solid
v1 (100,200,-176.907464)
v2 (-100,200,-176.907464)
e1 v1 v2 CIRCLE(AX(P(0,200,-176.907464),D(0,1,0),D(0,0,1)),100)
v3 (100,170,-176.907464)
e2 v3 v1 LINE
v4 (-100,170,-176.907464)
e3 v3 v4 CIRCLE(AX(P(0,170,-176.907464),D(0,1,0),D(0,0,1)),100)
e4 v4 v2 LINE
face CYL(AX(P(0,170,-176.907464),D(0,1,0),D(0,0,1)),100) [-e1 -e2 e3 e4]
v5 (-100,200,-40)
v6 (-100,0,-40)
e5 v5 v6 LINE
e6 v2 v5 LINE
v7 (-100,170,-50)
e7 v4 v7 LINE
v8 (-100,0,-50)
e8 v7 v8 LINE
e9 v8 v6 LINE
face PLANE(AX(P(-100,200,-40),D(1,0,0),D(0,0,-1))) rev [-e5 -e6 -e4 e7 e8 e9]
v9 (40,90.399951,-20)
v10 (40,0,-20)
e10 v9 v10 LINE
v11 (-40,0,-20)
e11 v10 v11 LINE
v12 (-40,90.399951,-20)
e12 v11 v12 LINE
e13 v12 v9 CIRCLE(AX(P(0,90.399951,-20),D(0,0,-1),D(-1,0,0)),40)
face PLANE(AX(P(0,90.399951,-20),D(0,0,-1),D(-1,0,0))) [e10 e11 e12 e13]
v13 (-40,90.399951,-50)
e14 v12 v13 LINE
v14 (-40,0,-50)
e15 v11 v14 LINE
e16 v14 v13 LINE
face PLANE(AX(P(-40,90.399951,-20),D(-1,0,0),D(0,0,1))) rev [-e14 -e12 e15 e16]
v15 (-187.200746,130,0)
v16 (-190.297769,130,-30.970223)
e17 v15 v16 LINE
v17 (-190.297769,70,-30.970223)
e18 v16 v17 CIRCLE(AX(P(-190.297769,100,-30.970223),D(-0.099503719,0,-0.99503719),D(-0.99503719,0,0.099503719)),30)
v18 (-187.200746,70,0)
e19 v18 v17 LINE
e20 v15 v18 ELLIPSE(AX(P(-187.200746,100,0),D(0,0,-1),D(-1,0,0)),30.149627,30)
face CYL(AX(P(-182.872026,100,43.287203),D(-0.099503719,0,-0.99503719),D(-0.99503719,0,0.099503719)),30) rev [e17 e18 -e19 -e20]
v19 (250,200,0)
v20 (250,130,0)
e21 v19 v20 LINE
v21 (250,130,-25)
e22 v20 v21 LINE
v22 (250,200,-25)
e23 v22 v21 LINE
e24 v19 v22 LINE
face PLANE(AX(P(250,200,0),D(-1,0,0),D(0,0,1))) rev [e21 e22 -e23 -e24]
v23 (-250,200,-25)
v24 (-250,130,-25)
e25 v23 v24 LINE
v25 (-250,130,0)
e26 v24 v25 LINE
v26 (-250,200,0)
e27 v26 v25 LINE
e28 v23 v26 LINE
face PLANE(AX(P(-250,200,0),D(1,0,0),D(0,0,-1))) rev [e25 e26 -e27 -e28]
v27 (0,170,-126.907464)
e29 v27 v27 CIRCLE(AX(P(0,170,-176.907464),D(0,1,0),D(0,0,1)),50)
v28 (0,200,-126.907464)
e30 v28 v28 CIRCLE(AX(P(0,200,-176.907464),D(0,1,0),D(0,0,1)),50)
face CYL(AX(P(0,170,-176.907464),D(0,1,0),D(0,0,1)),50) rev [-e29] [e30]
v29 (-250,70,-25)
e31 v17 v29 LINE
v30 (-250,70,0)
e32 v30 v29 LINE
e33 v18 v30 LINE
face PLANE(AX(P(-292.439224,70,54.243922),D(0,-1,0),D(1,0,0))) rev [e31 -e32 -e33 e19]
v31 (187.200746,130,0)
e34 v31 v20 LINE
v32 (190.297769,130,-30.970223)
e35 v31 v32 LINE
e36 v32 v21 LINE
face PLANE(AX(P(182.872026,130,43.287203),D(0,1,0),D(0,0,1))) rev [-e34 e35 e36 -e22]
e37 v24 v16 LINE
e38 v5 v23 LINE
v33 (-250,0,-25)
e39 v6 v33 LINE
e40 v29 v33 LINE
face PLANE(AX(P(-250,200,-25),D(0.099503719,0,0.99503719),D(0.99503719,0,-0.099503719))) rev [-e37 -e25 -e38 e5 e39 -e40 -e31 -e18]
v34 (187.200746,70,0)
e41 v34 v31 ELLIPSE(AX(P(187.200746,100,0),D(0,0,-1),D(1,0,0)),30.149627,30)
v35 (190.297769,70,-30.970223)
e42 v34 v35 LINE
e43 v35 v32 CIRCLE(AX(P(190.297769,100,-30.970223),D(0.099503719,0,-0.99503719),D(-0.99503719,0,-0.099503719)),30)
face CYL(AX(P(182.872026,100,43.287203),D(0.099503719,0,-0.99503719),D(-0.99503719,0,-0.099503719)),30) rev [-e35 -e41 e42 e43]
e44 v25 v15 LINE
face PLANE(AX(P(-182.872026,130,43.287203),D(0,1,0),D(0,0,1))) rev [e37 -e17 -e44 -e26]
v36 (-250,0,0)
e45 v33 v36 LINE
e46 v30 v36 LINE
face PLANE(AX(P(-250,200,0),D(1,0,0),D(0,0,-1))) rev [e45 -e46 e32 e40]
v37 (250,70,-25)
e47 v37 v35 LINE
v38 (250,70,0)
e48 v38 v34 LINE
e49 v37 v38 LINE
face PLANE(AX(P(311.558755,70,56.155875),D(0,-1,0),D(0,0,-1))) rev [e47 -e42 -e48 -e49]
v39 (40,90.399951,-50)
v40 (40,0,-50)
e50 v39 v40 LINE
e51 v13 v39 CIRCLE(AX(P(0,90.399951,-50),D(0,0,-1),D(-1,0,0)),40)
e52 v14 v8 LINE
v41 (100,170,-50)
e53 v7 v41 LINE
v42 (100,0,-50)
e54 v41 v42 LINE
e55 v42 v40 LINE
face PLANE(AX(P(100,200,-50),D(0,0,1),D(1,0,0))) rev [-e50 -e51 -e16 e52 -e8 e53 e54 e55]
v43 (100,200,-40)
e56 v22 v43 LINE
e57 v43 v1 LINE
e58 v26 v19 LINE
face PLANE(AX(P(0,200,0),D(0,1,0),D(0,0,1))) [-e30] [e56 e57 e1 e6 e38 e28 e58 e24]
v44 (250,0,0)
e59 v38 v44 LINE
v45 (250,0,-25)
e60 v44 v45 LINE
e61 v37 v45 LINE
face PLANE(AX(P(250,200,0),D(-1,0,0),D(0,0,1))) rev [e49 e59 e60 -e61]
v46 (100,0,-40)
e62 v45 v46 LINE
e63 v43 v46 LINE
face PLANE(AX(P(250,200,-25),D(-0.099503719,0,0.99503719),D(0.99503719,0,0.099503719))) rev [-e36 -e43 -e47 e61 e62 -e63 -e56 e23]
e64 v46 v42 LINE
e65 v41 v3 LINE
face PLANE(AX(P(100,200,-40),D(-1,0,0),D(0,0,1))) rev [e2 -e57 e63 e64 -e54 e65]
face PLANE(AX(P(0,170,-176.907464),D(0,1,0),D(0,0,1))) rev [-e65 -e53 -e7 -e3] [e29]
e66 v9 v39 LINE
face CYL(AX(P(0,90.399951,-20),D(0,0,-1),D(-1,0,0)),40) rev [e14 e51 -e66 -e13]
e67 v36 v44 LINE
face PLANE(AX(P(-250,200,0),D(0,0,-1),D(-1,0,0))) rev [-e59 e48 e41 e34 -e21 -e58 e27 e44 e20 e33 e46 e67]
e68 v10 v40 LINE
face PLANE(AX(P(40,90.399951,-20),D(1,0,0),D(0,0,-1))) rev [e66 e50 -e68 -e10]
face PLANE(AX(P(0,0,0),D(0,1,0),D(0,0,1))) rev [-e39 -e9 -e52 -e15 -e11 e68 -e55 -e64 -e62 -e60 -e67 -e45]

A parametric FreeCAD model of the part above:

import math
import FreeCAD as App
import Part
import Sketcher
Q = App.Units.Quantity


def add_polygon(sketch, points):
    """Adds a closed chain of lines whose ends are joined by coincident constraints."""
    first, n = sketch.GeometryCount, len(points)
    for a, b in zip(points, points[1:] + points[:1]):
        sketch.addGeometry(Part.LineSegment(App.Vector(*a, 0), App.Vector(*b, 0)), False)
    for i in range(n):
        sketch.addConstraint(Sketcher.Constraint("Coincident", first + i, 2, first + (i + 1) % n, 1))

doc = App.newDocument("Part")
body = doc.addObject("PartDesign::Body", "Body")

# Sketch on XZ plane
sketch1 = body.newObject("Sketcher::SketchObject", "Sketch")
sketch1.AttachmentSupport = (doc.getObject("XZ_Plane"), [""])
sketch1.MapMode = "FlatFace"
add_polygon(sketch1, [(-250, 0), (250, 0), (250, -25), (100, -40), (100, -50), (-100, -50), (-100, -40), (-250, -25)])  # lines 0-7
sketch1.addConstraint(Sketcher.Constraint("Horizontal", 0))
sketch1.addConstraint(Sketcher.Constraint("Vertical", 1))
sketch1.addConstraint(Sketcher.Constraint("Vertical", 3))
sketch1.addConstraint(Sketcher.Constraint("Horizontal", 4))
sketch1.addConstraint(Sketcher.Constraint("Vertical", 5))
sketch1.addConstraint(Sketcher.Constraint("Vertical", 7))
sketch1.addConstraint(Sketcher.Constraint("Symmetric", 0, 2, 7, 2, -1, 1))
sketch1.addConstraint(Sketcher.Constraint("Symmetric", 2, 2, 5, 2, -2))
sketch1.addConstraint(Sketcher.Constraint("Horizontal", 1, 2, 6, 2))
sketch1.addConstraint(Sketcher.Constraint("DistanceX", 0, 1, 0, 2, Q("500 mm")))
sketch1.addConstraint(Sketcher.Constraint("DistanceX", 4, 2, 4, 1, Q("200 mm")))
sketch1.addConstraint(Sketcher.Constraint("DistanceY", 1, 2, 1, 1, Q("25 mm")))
sketch1.addConstraint(Sketcher.Constraint("DistanceY", 3, 2, 3, 1, Q("10 mm")))
sketch1.addConstraint(Sketcher.Constraint("DistanceY", 2, 2, -1, 1, Q("40 mm")))
pad1 = body.newObject("PartDesign::Pad", "Pad")
pad1.Profile = sketch1
pad1.Length = 200
pad1.Reversed = True

# Sketch on XY plane
sketch2 = body.newObject("Sketcher::SketchObject", "Sketch001")
sketch2.AttachmentSupport = (doc.getObject("XY_Plane"), [""])
sketch2.MapMode = "FlatFace"
sketch2.AttachmentOffset = App.Placement(App.Vector(0, 0, -50), App.Rotation())
sketch2.addGeometry(Part.LineSegment(App.Vector(40, 0, 0), App.Vector(-40, 0, 0)), False)
sketch2.addGeometry(Part.LineSegment(App.Vector(-40, 0, 0), App.Vector(-40, 90, 0)), False)
sketch2.addGeometry(Part.ArcOfCircle(Part.Circle(App.Vector(0, 90, 0), App.Vector(0, 0, 1), 40), math.radians(0), math.radians(180)), False)
sketch2.addGeometry(Part.LineSegment(App.Vector(40, 90, 0), App.Vector(40, 0, 0)), False)
sketch2.addConstraint(Sketcher.Constraint("Coincident", 0, 2, 1, 1))
sketch2.addConstraint(Sketcher.Constraint("Tangent", 1, 2, 2, 2))
sketch2.addConstraint(Sketcher.Constraint("Tangent", 2, 1, 3, 1))
sketch2.addConstraint(Sketcher.Constraint("Coincident", 3, 2, 0, 1))
sketch2.addConstraint(Sketcher.Constraint("Horizontal", 0))
sketch2.addConstraint(Sketcher.Constraint("Vertical", 1))
sketch2.addConstraint(Sketcher.Constraint("Vertical", 3))
sketch2.addConstraint(Sketcher.Constraint("Symmetric", 0, 2, 3, 2, -1, 1))
sketch2.addConstraint(Sketcher.Constraint("Radius", 2, Q("40 mm")))
sketch2.addConstraint(Sketcher.Constraint("DistanceY", 1, 1, 1, 2, Q("90.399951 mm")))
pocket1 = body.newObject("PartDesign::Pocket", "Pocket")
pocket1.Profile = sketch2
pocket1.Length = 30
pocket1.Reversed = True

# Sketch on an angled plane
sketch3 = body.newObject("Sketcher::SketchObject", "Sketch002")
sketch3.Placement = App.Placement(App.Vector(-4.950495, 0, -49.50495), App.Rotation(App.Vector(-0.99503719, 0, 0.099503719), App.Vector(0, 1, 0), App.Vector(-0.099503719, 0, -0.99503719), "ZXY"))
sketch3.addGeometry(Part.LineSegment(App.Vector(296, 130, 0), App.Vector(186, 130, 0)), False)
sketch3.addGeometry(Part.ArcOfCircle(Part.Circle(App.Vector(186, 100, 0), App.Vector(0, 0, 1), 30), math.radians(90), math.radians(270)), False)
sketch3.addGeometry(Part.LineSegment(App.Vector(186, 70, 0), App.Vector(296, 70, 0)), False)
sketch3.addGeometry(Part.LineSegment(App.Vector(296, 70, 0), App.Vector(296, 130, 0)), False)
sketch3.addConstraint(Sketcher.Constraint("Tangent", 0, 2, 1, 1))
sketch3.addConstraint(Sketcher.Constraint("Tangent", 1, 2, 2, 1))
sketch3.addConstraint(Sketcher.Constraint("Coincident", 2, 2, 3, 1))
sketch3.addConstraint(Sketcher.Constraint("Coincident", 3, 2, 0, 1))
sketch3.addConstraint(Sketcher.Constraint("Horizontal", 0))
sketch3.addConstraint(Sketcher.Constraint("Horizontal", 2))
sketch3.addConstraint(Sketcher.Constraint("Vertical", 3))
sketch3.addConstraint(Sketcher.Constraint("Radius", 1, Q("30 mm")))
sketch3.addConstraint(Sketcher.Constraint("DistanceY", -1, 1, 1, 3, Q("100 mm")))
sketch3.addConstraint(Sketcher.Constraint("DistanceX", 0, 2, 0, 1, Q("110.113671 mm")))
sketch3.addConstraint(Sketcher.Constraint("DistanceX", -1, 1, 1, 3, Q("186.271704 mm")))
pocket2 = body.newObject("PartDesign::Pocket", "Pocket001")
pocket2.Profile = sketch3
pocket2.Type = "ThroughAll"

# Sketch on an angled plane
sketch4 = body.newObject("Sketcher::SketchObject", "Sketch003")
sketch4.Placement = App.Placement(App.Vector(4.950495, 0, -49.50495), App.Rotation(App.Vector(-0.99503719, 0, -0.099503719), App.Vector(0, 1, 0), App.Vector(0.099503719, 0, -0.99503719), "ZXY"))
sketch4.addGeometry(Part.LineSegment(App.Vector(-186, 130, 0), App.Vector(-316, 130, 0)), False)
sketch4.addGeometry(Part.LineSegment(App.Vector(-316, 130, 0), App.Vector(-316, 70, 0)), False)
sketch4.addGeometry(Part.LineSegment(App.Vector(-316, 70, 0), App.Vector(-186, 70, 0)), False)
sketch4.addGeometry(Part.ArcOfCircle(Part.Circle(App.Vector(-186, 100, 0), App.Vector(0, 0, 1), 30), math.radians(-90), math.radians(90)), False)
sketch4.addConstraint(Sketcher.Constraint("Coincident", 0, 2, 1, 1))
sketch4.addConstraint(Sketcher.Constraint("Coincident", 1, 2, 2, 1))
sketch4.addConstraint(Sketcher.Constraint("Tangent", 2, 2, 3, 1))
sketch4.addConstraint(Sketcher.Constraint("Tangent", 3, 2, 0, 1))
sketch4.addConstraint(Sketcher.Constraint("Horizontal", 0))
sketch4.addConstraint(Sketcher.Constraint("Vertical", 1))
sketch4.addConstraint(Sketcher.Constraint("Horizontal", 2))
sketch4.addConstraint(Sketcher.Constraint("Radius", 3, Q("30 mm")))
sketch4.addConstraint(Sketcher.Constraint("DistanceY", -1, 1, 3, 3, Q("100 mm")))
sketch4.addConstraint(Sketcher.Constraint("DistanceX", 0, 2, 0, 1, Q("129.328562 mm")))
sketch4.addConstraint(Sketcher.Constraint("DistanceX", 3, 3, -1, 1, Q("186.271704 mm")))
pocket3 = body.newObject("PartDesign::Pocket", "Pocket002")
pocket3.Profile = sketch4
pocket3.Type = "ThroughAll"

# Sketch on XZ plane
sketch5 = body.newObject("Sketcher::SketchObject", "Sketch004")
sketch5.AttachmentSupport = (doc.getObject("XZ_Plane"), [""])
sketch5.MapMode = "FlatFace"
sketch5.AttachmentOffset = App.Placement(App.Vector(0, 0, -200), App.Rotation())
sketch5.addGeometry(Part.LineSegment(App.Vector(-100, -50, 0), App.Vector(100, -50, 0)), False)
sketch5.addGeometry(Part.LineSegment(App.Vector(100, -50, 0), App.Vector(100, -177, 0)), False)
sketch5.addGeometry(Part.ArcOfCircle(Part.Circle(App.Vector(0, -177, 0), App.Vector(0, 0, 1), 100), math.radians(180), math.radians(360)), False)
sketch5.addGeometry(Part.LineSegment(App.Vector(-100, -177, 0), App.Vector(-100, -50, 0)), False)
sketch5.addGeometry(Part.Circle(App.Vector(0, -177, 0), App.Vector(0, 0, 1), 50), False)
sketch5.addConstraint(Sketcher.Constraint("Coincident", 0, 2, 1, 1))
sketch5.addConstraint(Sketcher.Constraint("Tangent", 1, 2, 2, 2))
sketch5.addConstraint(Sketcher.Constraint("Tangent", 2, 1, 3, 1))
sketch5.addConstraint(Sketcher.Constraint("Coincident", 3, 2, 0, 1))
sketch5.addConstraint(Sketcher.Constraint("Horizontal", 0))
sketch5.addConstraint(Sketcher.Constraint("Vertical", 1))
sketch5.addConstraint(Sketcher.Constraint("Vertical", 3))
sketch5.addConstraint(Sketcher.Constraint("Coincident", 4, 3, 2, 3))
sketch5.addConstraint(Sketcher.Constraint("PointOnObject", 2, 3, -2))
sketch5.addConstraint(Sketcher.Constraint("Diameter", 4, Q("100 mm")))
sketch5.addConstraint(Sketcher.Constraint("Radius", 2, Q("100 mm")))
sketch5.addConstraint(Sketcher.Constraint("DistanceY", 0, 2, -1, 1, Q("50 mm")))
sketch5.addConstraint(Sketcher.Constraint("DistanceY", 1, 2, 1, 1, Q("126.907464 mm")))
pad2 = body.newObject("PartDesign::Pad", "Pad001")
pad2.Profile = sketch5
pad2.Length = 30

doc.recompute()
